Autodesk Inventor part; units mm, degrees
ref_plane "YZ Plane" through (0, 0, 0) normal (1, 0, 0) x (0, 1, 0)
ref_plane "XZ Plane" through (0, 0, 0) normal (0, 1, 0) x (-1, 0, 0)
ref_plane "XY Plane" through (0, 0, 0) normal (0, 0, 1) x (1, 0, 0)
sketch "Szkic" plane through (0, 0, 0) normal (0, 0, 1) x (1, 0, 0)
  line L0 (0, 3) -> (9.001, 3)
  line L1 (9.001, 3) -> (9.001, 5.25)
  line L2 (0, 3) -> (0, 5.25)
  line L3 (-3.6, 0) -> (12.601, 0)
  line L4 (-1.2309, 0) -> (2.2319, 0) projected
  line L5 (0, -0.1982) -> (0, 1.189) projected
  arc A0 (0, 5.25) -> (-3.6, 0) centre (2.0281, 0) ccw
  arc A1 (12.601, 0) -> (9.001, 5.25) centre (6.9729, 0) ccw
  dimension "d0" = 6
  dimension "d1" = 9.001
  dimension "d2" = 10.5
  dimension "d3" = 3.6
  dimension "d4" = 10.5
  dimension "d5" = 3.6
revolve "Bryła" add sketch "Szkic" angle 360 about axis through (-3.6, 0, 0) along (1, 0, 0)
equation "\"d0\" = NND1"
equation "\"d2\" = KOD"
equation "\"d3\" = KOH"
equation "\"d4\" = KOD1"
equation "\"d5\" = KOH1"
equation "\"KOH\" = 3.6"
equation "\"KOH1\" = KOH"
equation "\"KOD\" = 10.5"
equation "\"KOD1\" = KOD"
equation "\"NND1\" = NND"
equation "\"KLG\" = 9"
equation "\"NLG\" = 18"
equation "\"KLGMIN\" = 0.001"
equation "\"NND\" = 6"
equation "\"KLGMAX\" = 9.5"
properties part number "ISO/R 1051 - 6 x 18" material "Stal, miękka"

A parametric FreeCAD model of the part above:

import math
import FreeCAD as App
import Part
import Sketcher
Q = App.Units.Quantity

doc = App.newDocument("Part")
body = doc.addObject("PartDesign::Body", "Body")

# Sketch on XY plane
sketch1 = body.newObject("Sketcher::SketchObject", "Sketch")
sketch1.AttachmentSupport = (doc.getObject("XY_Plane"), [""])
sketch1.MapMode = "FlatFace"
sketch1.addGeometry([
    Part.LineSegment(App.Vector(9.001, 3, 0), App.Vector(0, 3, 0)),  # 0
    Part.LineSegment(App.Vector(0, 3, 0), App.Vector(0, 5.25, 0)),  # 1
    Part.ArcOfCircle(Part.Circle(App.Vector(2.0281, 0, 0), App.Vector(0, 0, 1), 5.628116), math.radians(111.121784), math.radians(180)),  # 2
    Part.LineSegment(App.Vector(-3.6, 0, 0), App.Vector(12.601, 0, 0)),  # 3
    Part.ArcOfCircle(Part.Circle(App.Vector(6.9729, 0, 0), App.Vector(0, 0, 1), 5.6281), math.radians(0), math.radians(68.878216)),  # 4
    Part.LineSegment(App.Vector(9.001, 5.25, 0), App.Vector(9.001, 3, 0)),  # 5
], False)
sketch1.addConstraint([
    Sketcher.Constraint("Coincident", 0, 2, 1, 1),
    Sketcher.Constraint("Coincident", 1, 2, 2, 1),
    Sketcher.Constraint("Coincident", 2, 2, 3, 1),
    Sketcher.Constraint("Coincident", 3, 2, 4, 1),
    Sketcher.Constraint("Coincident", 4, 2, 5, 1),
    Sketcher.Constraint("Coincident", 5, 2, 0, 1),
    Sketcher.Constraint("Horizontal", 0),
    Sketcher.Constraint("Vertical", 1),
    Sketcher.Constraint("Horizontal", 3),
    Sketcher.Constraint("Vertical", 5),
    Sketcher.Constraint("Equal", 2, 4),
    Sketcher.Constraint("PointOnObject", 2, 3, -1),
    Sketcher.Constraint("PointOnObject", 4, 3, -1),
    Sketcher.Constraint("PointOnObject", 0, 2, -2),
    Sketcher.Constraint("PointOnObject", 2, 2, -1),
    Sketcher.Constraint("Horizontal", 1, 2, 4, 2),
    Sketcher.Constraint("DistanceX", 2, 2, -1, 1, Q("3.6 mm")),
    Sketcher.Constraint("DistanceX", 0, 2, 0, 1, Q("9.001 mm")),
    Sketcher.Constraint("DistanceY", -1, 1, 0, 2, Q("3 mm")),
    Sketcher.Constraint("Radius", 2, Q("5.628 mm")),
])
revolution = body.newObject("PartDesign::Revolution", "Revolution")
revolution.Profile = sketch1
revolution.ReferenceAxis = (sketch1, ["H_Axis"])
revolution.Angle = 360

doc.recompute()
